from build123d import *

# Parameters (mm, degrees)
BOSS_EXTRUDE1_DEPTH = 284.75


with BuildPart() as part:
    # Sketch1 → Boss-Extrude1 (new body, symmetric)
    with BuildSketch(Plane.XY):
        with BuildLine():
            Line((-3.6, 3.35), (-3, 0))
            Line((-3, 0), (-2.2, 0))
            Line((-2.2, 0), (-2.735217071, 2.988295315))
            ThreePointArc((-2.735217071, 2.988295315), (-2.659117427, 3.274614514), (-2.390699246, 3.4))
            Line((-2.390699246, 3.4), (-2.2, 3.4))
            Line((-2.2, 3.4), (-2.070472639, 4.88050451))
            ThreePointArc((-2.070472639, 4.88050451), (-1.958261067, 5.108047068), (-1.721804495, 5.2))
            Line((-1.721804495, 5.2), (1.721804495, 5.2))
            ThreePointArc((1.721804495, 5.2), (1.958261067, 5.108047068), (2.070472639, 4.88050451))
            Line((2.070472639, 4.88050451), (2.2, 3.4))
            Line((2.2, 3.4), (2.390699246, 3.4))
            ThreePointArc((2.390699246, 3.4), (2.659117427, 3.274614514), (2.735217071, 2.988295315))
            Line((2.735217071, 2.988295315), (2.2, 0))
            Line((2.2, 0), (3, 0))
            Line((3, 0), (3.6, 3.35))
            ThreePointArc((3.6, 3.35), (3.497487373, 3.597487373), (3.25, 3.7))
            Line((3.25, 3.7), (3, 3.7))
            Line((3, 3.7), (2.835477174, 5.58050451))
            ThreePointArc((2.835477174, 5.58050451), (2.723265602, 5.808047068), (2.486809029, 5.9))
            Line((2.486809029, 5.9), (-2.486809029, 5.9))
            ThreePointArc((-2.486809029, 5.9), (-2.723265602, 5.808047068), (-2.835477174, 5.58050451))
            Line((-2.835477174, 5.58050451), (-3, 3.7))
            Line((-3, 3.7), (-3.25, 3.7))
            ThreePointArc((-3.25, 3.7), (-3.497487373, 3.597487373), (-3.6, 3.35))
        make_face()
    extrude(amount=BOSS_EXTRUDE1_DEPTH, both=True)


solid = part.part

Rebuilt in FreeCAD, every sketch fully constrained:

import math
import FreeCAD as App
import Part
import Sketcher

V = App.Vector
Q = App.Units.Quantity

doc = App.newDocument("Part")
body = doc.addObject("PartDesign::Body", "Body")

# Sketch on XY plane
sketch1 = body.newObject("Sketcher::SketchObject", "Sketch")
sketch1.AttachmentSupport = (doc.getObject("XY_Plane"), [""])
sketch1.MapMode = "FlatFace"
sketch1.addGeometry([
    Part.LineSegment(V(-3.6, 3.35, 0), V(-3, 0, 0)),  # 0
    Part.LineSegment(V(-3, 0, 0), V(-2.2, 0, 0)),  # 1
    Part.LineSegment(V(-2.2, 0, 0), V(-2.735217, 2.988295, 0)),  # 2
    Part.ArcOfCircle(Part.Circle(V(-2.390699, 3.05, 0), V(0, 0, 1), 0.35), math.radians(90), math.radians(190.154267)),  # 3
    Part.LineSegment(V(-2.390699, 3.4, 0), V(-2.2, 3.4, 0)),  # 4
    Part.LineSegment(V(-2.2, 3.4, 0), V(-2.070473, 4.880505, 0)),  # 5
    Part.ArcOfCircle(Part.Circle(V(-1.721804, 4.85, 0), V(0, 0, 1), 0.35), math.radians(90), math.radians(175)),  # 6
    Part.LineSegment(V(-1.721804, 5.2, 0), V(1.721804, 5.2, 0)),  # 7
    Part.ArcOfCircle(Part.Circle(V(1.721804, 4.85, 0), V(0, 0, 1), 0.35), math.radians(5), math.radians(90)),  # 8
    Part.LineSegment(V(2.070473, 4.880505, 0), V(2.2, 3.4, 0)),  # 9
    Part.LineSegment(V(2.2, 3.4, 0), V(2.390699, 3.4, 0)),  # 10
    Part.ArcOfCircle(Part.Circle(V(2.390699, 3.05, 0), V(0, 0, 1), 0.35), math.radians(-10.154267), math.radians(90)),  # 11
    Part.LineSegment(V(2.735217, 2.988295, 0), V(2.2, 0, 0)),  # 12
    Part.LineSegment(V(2.2, 0, 0), V(3, 0, 0)),  # 13
    Part.LineSegment(V(3, 0, 0), V(3.6, 3.35, 0)),  # 14
    Part.ArcOfCircle(Part.Circle(V(3.25, 3.35, 0), V(0, 0, 1), 0.35), math.radians(0), math.radians(90)),  # 15
    Part.LineSegment(V(3.25, 3.7, 0), V(3, 3.7, 0)),  # 16
    Part.LineSegment(V(3, 3.7, 0), V(2.835477, 5.580505, 0)),  # 17
    Part.ArcOfCircle(Part.Circle(V(2.486809, 5.55, 0), V(0, 0, 1), 0.35), math.radians(5), math.radians(90)),  # 18
    Part.LineSegment(V(2.486809, 5.9, 0), V(-2.486809, 5.9, 0)),  # 19
    Part.ArcOfCircle(Part.Circle(V(-2.486809, 5.55, 0), V(0, 0, 1), 0.35), math.radians(90), math.radians(175)),  # 20
    Part.LineSegment(V(-2.835477, 5.580505, 0), V(-3, 3.7, 0)),  # 21
    Part.LineSegment(V(-3, 3.7, 0), V(-3.25, 3.7, 0)),  # 22
    Part.ArcOfCircle(Part.Circle(V(-3.25, 3.35, 0), V(0, 0, 1), 0.35), math.radians(90), math.radians(180)),  # 23
], False)
sketch1.addConstraint([
    Sketcher.Constraint("Coincident", 0, 2, 1, 1),
    Sketcher.Constraint("Coincident", 1, 2, 2, 1),
    Sketcher.Constraint("Tangent", 2, 2, 3, 2),
    Sketcher.Constraint("Tangent", 3, 1, 4, 1),
    Sketcher.Constraint("Coincident", 4, 2, 5, 1),
    Sketcher.Constraint("Tangent", 5, 2, 6, 2),
    Sketcher.Constraint("Tangent", 6, 1, 7, 1),
    Sketcher.Constraint("Tangent", 7, 2, 8, 2),
    Sketcher.Constraint("Tangent", 8, 1, 9, 1),
    Sketcher.Constraint("Coincident", 9, 2, 10, 1),
    Sketcher.Constraint("Tangent", 10, 2, 11, 2),
    Sketcher.Constraint("Tangent", 11, 1, 12, 1),
    Sketcher.Constraint("Coincident", 12, 2, 13, 1),
    Sketcher.Constraint("Coincident", 13, 2, 14, 1),
    Sketcher.Constraint("Coincident", 14, 2, 15, 1),
    Sketcher.Constraint("Tangent", 15, 2, 16, 1),
    Sketcher.Constraint("Coincident", 16, 2, 17, 1),
    Sketcher.Constraint("Tangent", 17, 2, 18, 1),
    Sketcher.Constraint("Tangent", 18, 2, 19, 1),
    Sketcher.Constraint("Tangent", 19, 2, 20, 1),
    Sketcher.Constraint("Tangent", 20, 2, 21, 1),
    Sketcher.Constraint("Coincident", 21, 2, 22, 1),
    Sketcher.Constraint("Tangent", 22, 2, 23, 1),
    Sketcher.Constraint("Coincident", 23, 2, 0, 1),
    Sketcher.Constraint("Horizontal", 1),
    Sketcher.Constraint("Horizontal", 4),
    Sketcher.Constraint("Horizontal", 7),
    Sketcher.Constraint("Horizontal", 10),
    Sketcher.Constraint("Horizontal", 13),
    Sketcher.Constraint("Horizontal", 16),
    Sketcher.Constraint("Horizontal", 19),
    Sketcher.Constraint("Horizontal", 22),
    Sketcher.Constraint("Equal", 3, 6),
    Sketcher.Constraint("Equal", 6, 8),
    Sketcher.Constraint("Equal", 8, 11),
    Sketcher.Constraint("Equal", 11, 15),
    Sketcher.Constraint("Equal", 15, 18),
    Sketcher.Constraint("Equal", 18, 20),
    Sketcher.Constraint("Equal", 20, 23),
    Sketcher.Constraint("Symmetric", 1, 2, 12, 2, -1, 1),
    Sketcher.Constraint("Symmetric", 3, 3, 11, 3, -2),
    Sketcher.Constraint("Symmetric", 15, 3, 23, 3, -2),
    Sketcher.Constraint("Symmetric", 5, 2, 8, 1, -2),
    Sketcher.Constraint("Symmetric", 0, 2, 13, 2, -2),
    Sketcher.Constraint("Symmetric", 17, 2, 20, 2, -2),
    Sketcher.Constraint("Parallel", 0, 2),
    Sketcher.Constraint("Parallel", 12, 14),
    Sketcher.Constraint("Parallel", 9, 17),
    Sketcher.Constraint("Horizontal", 23, 3, 14, 2),
    Sketcher.Constraint("Vertical", 1, 2, 4, 2),
    Sketcher.Constraint("Vertical", 13, 2, 16, 2),
    Sketcher.Constraint("Angle", 5, Q("85 deg")),
    Sketcher.Constraint("Radius", 3, 0.35),
    Sketcher.Constraint("DistanceX", 1, 1, 1, 2, 0.8),
    Sketcher.Constraint("DistanceX", 0, 2, -1, 1, 3.0),
    Sketcher.Constraint("DistanceX", 16, 2, 16, 1, 0.25),
    Sketcher.Constraint("DistanceY", -1, 1, 3, 1, 3.4),
    Sketcher.Constraint("DistanceY", -1, 1, 6, 1, 5.2),
    Sketcher.Constraint("DistanceY", -1, 1, 15, 2, 3.7),
    Sketcher.Constraint("DistanceY", -1, 1, 18, 2, 5.9),
])
pad1 = body.newObject("PartDesign::Pad", "Pad")
pad1.Profile = sketch1
pad1.Length = 569.5
pad1.Midplane = True

doc.recompute()
